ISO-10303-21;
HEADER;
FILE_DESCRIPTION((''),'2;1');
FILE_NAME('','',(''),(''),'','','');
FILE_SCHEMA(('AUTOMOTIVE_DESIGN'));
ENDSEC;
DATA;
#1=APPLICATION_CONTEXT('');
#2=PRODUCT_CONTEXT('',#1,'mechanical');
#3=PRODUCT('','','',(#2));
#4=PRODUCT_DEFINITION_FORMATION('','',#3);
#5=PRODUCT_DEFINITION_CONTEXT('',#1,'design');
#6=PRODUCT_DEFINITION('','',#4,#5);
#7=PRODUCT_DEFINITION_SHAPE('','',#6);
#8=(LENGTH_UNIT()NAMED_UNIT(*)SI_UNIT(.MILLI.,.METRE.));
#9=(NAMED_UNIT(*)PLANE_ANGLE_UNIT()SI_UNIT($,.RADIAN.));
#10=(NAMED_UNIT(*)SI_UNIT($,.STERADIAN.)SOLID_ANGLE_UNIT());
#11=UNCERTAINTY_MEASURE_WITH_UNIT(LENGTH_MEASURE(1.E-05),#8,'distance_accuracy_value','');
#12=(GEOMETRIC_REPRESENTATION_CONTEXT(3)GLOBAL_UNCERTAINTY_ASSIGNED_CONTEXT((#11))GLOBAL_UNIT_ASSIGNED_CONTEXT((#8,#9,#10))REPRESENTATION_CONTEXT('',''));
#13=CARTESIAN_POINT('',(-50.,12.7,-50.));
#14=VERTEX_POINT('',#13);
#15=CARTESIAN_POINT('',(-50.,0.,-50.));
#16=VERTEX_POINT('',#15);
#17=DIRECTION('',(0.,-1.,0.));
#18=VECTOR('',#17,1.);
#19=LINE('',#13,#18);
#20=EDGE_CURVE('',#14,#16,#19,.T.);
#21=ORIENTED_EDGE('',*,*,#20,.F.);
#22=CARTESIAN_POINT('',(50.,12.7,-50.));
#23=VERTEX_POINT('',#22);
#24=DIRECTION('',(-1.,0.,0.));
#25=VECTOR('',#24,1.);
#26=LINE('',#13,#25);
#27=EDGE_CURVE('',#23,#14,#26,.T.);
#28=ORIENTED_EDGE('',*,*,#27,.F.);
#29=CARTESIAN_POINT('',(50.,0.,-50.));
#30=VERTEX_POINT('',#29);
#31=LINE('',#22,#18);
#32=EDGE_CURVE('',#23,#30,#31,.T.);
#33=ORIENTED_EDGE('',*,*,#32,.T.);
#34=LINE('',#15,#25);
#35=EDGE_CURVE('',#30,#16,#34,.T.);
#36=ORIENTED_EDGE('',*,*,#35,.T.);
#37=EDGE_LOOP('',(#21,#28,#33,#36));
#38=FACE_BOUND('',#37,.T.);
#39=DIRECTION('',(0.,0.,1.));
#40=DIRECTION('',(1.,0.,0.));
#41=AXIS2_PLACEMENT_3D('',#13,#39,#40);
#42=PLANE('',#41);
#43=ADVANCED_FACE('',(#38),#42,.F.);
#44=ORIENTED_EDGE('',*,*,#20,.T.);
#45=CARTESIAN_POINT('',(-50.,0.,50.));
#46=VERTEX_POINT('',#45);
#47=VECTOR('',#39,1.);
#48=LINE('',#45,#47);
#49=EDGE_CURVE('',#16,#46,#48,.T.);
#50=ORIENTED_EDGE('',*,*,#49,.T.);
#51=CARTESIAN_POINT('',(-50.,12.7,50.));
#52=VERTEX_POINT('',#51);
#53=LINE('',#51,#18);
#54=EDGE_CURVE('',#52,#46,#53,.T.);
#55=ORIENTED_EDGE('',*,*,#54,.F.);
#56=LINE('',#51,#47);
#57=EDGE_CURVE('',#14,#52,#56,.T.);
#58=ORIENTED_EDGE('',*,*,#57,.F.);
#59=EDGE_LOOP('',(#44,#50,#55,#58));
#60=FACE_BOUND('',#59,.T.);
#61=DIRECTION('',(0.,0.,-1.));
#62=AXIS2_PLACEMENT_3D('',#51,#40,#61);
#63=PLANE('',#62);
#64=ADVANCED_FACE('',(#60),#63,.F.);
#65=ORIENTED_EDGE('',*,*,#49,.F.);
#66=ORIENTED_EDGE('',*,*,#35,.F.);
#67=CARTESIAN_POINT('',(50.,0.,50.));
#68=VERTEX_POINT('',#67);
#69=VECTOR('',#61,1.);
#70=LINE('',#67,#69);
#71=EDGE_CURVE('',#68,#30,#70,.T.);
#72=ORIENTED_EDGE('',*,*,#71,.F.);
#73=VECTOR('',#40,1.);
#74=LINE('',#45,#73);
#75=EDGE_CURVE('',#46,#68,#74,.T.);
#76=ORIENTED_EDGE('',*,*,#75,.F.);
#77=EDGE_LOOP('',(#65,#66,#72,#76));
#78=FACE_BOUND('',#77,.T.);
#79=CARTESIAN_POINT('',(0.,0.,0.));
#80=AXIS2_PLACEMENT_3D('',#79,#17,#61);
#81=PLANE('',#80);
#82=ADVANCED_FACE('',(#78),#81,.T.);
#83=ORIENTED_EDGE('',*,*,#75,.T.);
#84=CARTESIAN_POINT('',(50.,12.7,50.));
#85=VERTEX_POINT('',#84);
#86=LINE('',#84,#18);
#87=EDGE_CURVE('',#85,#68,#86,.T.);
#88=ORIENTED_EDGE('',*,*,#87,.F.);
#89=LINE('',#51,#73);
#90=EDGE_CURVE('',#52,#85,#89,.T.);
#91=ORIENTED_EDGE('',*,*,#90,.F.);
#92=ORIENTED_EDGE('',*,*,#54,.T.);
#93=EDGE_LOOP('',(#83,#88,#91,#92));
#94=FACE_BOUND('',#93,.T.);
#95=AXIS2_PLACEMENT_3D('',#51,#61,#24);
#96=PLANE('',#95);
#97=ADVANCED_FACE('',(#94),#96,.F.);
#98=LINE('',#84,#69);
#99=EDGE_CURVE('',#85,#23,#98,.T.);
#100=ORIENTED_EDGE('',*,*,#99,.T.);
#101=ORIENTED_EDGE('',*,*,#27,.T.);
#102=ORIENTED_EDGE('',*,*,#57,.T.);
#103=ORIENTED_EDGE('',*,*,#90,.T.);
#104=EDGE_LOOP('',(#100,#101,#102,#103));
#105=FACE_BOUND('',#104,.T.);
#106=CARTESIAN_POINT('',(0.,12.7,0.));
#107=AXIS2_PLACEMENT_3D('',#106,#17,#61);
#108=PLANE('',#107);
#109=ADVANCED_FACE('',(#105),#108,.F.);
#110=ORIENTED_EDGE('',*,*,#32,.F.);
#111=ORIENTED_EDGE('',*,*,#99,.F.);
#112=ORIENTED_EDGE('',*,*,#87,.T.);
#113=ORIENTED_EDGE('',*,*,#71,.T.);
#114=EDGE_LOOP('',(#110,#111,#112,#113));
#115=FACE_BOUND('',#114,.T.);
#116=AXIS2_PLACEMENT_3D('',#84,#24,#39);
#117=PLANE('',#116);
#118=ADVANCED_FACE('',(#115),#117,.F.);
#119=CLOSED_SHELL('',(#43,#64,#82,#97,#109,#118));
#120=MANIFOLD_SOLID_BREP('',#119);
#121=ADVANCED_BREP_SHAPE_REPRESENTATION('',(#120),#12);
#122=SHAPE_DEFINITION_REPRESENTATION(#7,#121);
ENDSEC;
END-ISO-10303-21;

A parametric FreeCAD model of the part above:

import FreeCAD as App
import Part
import Sketcher

doc = App.newDocument("Part")
body = doc.addObject("PartDesign::Body", "Body")

sketch1 = body.newObject("Sketcher::SketchObject", "Sketch")
sketch1.AttachmentSupport = (doc.getObject("XZ_Plane"), [""])
sketch1.MapMode = "FlatFace"
sketch1.addGeometry([
    Part.LineSegment(App.Vector(-50, -50, 0), App.Vector(-50, 50, 0)),
    Part.LineSegment(App.Vector(-50, 50, 0), App.Vector(50, 50, 0)),
    Part.LineSegment(App.Vector(50, 50, 0), App.Vector(50, -50, 0)),
    Part.LineSegment(App.Vector(50, -50, 0), App.Vector(-50, -50, 0)),
], False)
sketch1.addConstraint([
    Sketcher.Constraint("Coincident", 0, 2, 1, 1),
    Sketcher.Constraint("Coincident", 1, 2, 2, 1),
    Sketcher.Constraint("Coincident", 2, 2, 3, 1),
    Sketcher.Constraint("Coincident", 3, 2, 0, 1),
    Sketcher.Constraint("Vertical", 0),
    Sketcher.Constraint("Horizontal", 1),
    Sketcher.Constraint("Vertical", 2),
    Sketcher.Constraint("Horizontal", 3),
    Sketcher.Constraint("Symmetric", 0, 2, 2, 2, -1, 1),
    Sketcher.Constraint("Equal", 3, 0),
    Sketcher.Constraint("DistanceX", 1, 1, 1, 2, 100.0),
])
pad1 = body.newObject("PartDesign::Pad", "Pad")
pad1.Profile = sketch1
pad1.Length = 12.7
pad1.Reversed = True

doc.recompute()
